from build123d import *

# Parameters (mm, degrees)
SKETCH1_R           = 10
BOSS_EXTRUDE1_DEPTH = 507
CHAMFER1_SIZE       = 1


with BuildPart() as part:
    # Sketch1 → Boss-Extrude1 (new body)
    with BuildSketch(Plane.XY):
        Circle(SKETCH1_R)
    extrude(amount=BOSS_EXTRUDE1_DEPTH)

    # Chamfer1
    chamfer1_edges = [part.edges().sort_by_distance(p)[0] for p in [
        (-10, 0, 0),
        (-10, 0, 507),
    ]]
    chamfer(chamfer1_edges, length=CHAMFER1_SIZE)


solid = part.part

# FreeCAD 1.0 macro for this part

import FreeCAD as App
import Part
import Sketcher
from FreeCAD import Vector


def edges_at(feature, points):
    """Names of the edges that pass closest to the given points."""
    edges = feature.Shape.Edges
    near = lambda p: min(range(len(edges)), key=lambda i: edges[i].distToShape(Part.Vertex(*p))[0])
    return sorted({f"Edge{near(p) + 1}" for p in points})

doc = App.newDocument("Part")
body = doc.addObject("PartDesign::Body", "Body")

sketch1 = body.newObject("Sketcher::SketchObject", "Sketch")
sketch1.AttachmentSupport = (doc.getObject("XY_Plane"), [""])
sketch1.MapMode = "FlatFace"
sketch1.addGeometry(Part.Circle(Vector(0, 0, 0), Vector(0, 0, 1), 10), False)
sketch1.addConstraint(Sketcher.Constraint("Coincident", 0, 3, -1, 1))
sketch1.addConstraint(Sketcher.Constraint("Diameter", 0, 20.0))
pad1 = body.newObject("PartDesign::Pad", "Pad")
pad1.Profile = sketch1
pad1.Length = 507
doc.recompute()

chamfer = body.newObject("PartDesign::Chamfer", "Chamfer")
chamfer.Base = (pad1, edges_at(pad1, [(-10, 0, 0), (-10, 0, 507)]))
chamfer.Size = 1

doc.recompute()
